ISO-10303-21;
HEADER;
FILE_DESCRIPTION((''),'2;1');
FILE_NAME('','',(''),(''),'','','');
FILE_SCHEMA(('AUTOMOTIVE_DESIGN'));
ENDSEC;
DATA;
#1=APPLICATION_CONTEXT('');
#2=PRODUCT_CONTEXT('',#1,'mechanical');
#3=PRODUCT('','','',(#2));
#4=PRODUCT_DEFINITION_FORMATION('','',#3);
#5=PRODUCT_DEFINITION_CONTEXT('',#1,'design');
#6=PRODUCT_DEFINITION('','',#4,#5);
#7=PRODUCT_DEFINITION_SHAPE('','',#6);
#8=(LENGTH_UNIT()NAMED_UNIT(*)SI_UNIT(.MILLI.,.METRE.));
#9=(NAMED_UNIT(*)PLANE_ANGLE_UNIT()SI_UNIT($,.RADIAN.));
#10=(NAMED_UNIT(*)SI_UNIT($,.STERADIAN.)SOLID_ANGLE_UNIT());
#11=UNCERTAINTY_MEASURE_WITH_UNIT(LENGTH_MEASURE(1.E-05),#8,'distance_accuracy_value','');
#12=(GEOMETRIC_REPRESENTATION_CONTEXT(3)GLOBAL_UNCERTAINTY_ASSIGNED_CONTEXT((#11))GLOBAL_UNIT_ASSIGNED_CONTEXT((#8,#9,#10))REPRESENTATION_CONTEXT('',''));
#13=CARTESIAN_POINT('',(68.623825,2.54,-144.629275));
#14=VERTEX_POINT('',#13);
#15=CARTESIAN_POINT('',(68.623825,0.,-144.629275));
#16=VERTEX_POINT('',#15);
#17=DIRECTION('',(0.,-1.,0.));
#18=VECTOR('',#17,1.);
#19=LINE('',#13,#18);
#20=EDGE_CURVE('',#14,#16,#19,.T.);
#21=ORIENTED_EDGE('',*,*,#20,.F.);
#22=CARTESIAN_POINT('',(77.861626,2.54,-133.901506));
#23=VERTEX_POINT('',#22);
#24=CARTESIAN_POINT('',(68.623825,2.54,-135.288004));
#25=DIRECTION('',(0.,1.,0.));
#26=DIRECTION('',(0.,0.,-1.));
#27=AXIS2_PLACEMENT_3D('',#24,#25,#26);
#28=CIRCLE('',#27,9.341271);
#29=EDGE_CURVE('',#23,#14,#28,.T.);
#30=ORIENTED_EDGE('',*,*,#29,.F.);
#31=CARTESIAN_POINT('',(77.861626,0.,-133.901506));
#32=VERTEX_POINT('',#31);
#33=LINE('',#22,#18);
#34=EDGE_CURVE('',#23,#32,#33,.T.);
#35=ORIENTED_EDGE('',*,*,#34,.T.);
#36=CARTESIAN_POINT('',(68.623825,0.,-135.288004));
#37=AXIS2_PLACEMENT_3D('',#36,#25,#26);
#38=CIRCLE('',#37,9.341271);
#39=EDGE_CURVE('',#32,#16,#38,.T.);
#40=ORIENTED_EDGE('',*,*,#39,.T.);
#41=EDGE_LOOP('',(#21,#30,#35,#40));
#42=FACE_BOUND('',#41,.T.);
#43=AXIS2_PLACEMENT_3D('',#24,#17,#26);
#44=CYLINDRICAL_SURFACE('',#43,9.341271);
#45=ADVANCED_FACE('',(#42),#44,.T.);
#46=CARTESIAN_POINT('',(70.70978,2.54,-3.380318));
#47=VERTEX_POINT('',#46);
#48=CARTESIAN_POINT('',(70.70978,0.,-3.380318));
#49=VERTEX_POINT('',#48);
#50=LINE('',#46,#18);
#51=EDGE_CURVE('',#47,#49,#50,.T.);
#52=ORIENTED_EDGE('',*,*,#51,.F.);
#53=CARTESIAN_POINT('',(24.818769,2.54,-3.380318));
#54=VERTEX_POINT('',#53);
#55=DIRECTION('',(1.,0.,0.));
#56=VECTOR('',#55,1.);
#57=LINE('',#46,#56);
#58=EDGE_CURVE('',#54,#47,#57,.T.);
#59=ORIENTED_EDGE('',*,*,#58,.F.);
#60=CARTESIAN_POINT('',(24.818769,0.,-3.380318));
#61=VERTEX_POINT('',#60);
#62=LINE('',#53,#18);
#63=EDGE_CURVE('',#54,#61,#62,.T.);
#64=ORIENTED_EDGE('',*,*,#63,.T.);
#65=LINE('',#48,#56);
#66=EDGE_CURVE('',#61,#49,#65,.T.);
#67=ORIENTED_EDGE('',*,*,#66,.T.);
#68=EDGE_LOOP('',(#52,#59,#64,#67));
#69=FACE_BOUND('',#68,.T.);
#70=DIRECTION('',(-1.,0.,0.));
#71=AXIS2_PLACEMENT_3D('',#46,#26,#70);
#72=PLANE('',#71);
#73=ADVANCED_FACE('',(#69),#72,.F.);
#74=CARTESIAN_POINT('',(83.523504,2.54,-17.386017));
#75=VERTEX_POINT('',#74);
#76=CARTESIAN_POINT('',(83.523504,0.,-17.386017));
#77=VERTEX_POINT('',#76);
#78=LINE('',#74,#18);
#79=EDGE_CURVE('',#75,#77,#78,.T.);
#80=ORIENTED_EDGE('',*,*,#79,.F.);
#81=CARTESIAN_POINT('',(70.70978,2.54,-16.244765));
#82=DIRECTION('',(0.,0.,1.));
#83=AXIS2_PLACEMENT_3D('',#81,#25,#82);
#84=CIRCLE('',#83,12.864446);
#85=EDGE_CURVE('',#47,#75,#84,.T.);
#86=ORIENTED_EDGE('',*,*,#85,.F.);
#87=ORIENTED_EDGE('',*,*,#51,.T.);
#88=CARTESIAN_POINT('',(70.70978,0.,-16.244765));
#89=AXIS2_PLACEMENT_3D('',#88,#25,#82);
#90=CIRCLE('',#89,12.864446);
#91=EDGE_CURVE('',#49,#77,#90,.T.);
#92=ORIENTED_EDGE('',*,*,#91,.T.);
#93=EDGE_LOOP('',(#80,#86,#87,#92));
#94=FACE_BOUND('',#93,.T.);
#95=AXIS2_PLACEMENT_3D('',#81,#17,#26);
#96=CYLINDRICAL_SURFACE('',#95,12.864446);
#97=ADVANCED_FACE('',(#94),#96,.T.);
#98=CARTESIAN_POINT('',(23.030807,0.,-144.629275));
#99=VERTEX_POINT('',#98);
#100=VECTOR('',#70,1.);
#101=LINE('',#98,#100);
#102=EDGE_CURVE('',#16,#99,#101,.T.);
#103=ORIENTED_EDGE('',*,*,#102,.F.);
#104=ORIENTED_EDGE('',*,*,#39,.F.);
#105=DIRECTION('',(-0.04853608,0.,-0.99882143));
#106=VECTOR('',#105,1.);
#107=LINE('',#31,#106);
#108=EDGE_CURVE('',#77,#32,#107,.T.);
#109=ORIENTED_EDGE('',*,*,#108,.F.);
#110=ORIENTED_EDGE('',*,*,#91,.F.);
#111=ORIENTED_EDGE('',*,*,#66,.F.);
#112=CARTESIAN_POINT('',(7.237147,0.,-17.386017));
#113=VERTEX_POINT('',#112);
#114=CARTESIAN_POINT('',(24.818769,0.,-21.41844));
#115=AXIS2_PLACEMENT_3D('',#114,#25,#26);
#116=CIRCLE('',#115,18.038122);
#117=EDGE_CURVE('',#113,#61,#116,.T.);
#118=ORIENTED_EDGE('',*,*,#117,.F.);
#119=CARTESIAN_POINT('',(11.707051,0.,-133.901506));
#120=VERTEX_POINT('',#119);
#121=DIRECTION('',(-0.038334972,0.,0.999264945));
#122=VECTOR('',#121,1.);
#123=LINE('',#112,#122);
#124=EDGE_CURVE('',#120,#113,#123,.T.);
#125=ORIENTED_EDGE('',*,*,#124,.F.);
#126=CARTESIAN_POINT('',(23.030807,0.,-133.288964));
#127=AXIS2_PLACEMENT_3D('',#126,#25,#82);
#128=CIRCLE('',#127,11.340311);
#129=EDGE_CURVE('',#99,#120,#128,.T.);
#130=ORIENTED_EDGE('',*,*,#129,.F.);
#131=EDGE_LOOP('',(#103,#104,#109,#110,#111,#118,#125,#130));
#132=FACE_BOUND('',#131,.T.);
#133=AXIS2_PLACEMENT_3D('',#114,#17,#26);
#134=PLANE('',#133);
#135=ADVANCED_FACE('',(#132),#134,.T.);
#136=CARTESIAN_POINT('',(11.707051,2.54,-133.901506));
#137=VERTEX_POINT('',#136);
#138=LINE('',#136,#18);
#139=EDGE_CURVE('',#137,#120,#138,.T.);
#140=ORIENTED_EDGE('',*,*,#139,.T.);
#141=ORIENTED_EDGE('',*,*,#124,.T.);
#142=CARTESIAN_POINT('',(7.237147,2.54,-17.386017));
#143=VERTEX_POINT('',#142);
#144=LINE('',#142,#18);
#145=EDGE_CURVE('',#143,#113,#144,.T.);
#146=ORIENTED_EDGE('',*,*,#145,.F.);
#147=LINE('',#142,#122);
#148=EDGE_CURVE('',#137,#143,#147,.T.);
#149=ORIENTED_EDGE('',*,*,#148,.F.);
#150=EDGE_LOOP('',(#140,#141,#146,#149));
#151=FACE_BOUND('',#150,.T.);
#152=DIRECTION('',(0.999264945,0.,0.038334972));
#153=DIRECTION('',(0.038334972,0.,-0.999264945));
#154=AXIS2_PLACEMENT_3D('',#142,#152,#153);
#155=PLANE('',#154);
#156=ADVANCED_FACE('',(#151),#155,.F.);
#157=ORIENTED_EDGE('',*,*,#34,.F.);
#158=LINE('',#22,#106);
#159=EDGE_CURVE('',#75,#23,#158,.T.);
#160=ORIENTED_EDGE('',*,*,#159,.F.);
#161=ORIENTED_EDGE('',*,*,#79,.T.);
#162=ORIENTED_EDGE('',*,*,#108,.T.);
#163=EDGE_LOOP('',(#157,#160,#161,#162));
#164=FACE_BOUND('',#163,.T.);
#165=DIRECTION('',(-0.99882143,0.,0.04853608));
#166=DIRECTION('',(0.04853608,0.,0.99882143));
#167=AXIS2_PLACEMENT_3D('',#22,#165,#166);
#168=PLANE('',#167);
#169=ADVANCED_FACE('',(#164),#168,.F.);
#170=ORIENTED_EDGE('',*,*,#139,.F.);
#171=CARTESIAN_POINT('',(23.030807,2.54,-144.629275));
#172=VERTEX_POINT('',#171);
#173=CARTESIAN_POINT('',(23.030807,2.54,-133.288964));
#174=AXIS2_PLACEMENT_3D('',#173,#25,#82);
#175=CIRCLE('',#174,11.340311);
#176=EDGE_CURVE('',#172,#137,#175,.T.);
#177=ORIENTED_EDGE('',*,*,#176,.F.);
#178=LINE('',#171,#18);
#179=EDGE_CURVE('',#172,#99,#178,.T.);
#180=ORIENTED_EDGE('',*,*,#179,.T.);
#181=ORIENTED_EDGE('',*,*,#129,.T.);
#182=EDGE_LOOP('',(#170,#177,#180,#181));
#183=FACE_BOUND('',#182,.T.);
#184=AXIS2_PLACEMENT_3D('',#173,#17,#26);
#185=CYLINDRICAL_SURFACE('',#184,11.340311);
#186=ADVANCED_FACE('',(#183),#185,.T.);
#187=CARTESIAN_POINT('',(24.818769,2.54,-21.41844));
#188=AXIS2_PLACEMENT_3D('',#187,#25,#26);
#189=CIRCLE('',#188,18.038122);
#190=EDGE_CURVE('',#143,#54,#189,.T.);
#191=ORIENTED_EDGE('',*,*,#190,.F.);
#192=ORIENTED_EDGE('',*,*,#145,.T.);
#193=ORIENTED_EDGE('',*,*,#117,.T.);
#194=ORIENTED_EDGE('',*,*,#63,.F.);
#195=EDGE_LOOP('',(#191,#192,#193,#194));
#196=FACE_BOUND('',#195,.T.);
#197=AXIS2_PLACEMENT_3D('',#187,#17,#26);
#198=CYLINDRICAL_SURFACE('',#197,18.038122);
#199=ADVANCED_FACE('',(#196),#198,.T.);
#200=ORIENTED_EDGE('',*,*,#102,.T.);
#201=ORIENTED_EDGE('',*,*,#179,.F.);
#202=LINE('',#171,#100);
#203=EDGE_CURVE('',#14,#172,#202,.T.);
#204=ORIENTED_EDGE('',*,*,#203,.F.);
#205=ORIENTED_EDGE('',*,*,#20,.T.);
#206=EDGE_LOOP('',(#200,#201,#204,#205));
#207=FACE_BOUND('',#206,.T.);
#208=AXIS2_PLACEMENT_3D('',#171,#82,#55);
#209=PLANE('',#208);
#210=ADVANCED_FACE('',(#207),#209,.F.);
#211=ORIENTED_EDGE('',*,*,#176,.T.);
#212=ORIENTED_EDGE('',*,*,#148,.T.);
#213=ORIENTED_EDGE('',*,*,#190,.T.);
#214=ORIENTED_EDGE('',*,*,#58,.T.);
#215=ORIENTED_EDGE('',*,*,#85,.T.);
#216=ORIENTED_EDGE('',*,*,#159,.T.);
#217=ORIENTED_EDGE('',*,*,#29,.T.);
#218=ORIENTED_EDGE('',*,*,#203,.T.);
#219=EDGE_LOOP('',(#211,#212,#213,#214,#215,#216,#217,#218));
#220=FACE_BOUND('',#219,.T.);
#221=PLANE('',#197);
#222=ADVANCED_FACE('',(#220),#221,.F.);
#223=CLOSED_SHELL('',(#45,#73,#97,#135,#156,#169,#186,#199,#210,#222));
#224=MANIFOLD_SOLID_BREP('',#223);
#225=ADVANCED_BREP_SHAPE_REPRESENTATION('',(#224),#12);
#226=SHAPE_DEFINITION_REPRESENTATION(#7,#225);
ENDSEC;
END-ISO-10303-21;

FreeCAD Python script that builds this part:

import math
import FreeCAD as App
import Part
import Sketcher

V = App.Vector
Q = App.Units.Quantity

doc = App.newDocument("Part")
params = doc.addObject("Spreadsheet::Sheet", "Params")
for row, (alias, value) in enumerate([
    ("pad1_length", "0.1 in"),
], start=1):
    params.set(f"A{row}", alias)
    params.set(f"B{row}", "=" + value)
    params.setAlias(f"B{row}", alias)

body = doc.addObject("PartDesign::Body", "Body")

# Sketch on XZ plane
sketch1 = body.newObject("Sketcher::SketchObject", "Sketch")
sketch1.AttachmentSupport = (doc.getObject("XZ_Plane"), [""])
sketch1.MapMode = "FlatFace"
sketch1.addGeometry([
    Part.LineSegment(V(11.707051, -133.901506, 0), V(7.237147, -17.386017, 0)),  # 0
    Part.ArcOfCircle(Part.Circle(V(24.818769, -21.41844, 0), V(0, 0, 1), 18.038122), math.radians(90), math.radians(167.082367)),  # 1
    Part.LineSegment(V(24.818769, -3.380318, 0), V(70.70978, -3.380318, 0)),  # 2
    Part.ArcOfCircle(Part.Circle(V(70.70978, -16.244765, 0), V(0, 0, 1), 12.864446), math.radians(-5.089609), math.radians(90)),  # 3
    Part.LineSegment(V(83.523504, -17.386017, 0), V(77.861626, -133.901506, 0)),  # 4
    Part.ArcOfCircle(Part.Circle(V(68.623825, -135.288004, 0), V(0, 0, 1), 9.341271), math.radians(-90), math.radians(8.535787)),  # 5
    Part.LineSegment(V(68.623825, -144.629275, 0), V(23.030807, -144.629275, 0)),  # 6
    Part.ArcOfCircle(Part.Circle(V(23.030807, -133.288964, 0), V(0, 0, 1), 11.340311), math.radians(-176.903685), math.radians(-90)),  # 7
], False)
sketch1.addConstraint([
    Sketcher.Constraint("Coincident", 0, 2, 1, 2),
    Sketcher.Constraint("Coincident", 1, 1, 2, 1),
    Sketcher.Constraint("Coincident", 2, 2, 3, 2),
    Sketcher.Constraint("Coincident", 3, 1, 4, 1),
    Sketcher.Constraint("Coincident", 4, 2, 5, 2),
    Sketcher.Constraint("Coincident", 5, 1, 6, 1),
    Sketcher.Constraint("Coincident", 6, 2, 7, 2),
    Sketcher.Constraint("Coincident", 7, 1, 0, 1),
    Sketcher.Constraint("Horizontal", 2),
    Sketcher.Constraint("Horizontal", 6),
    Sketcher.Constraint("Radius", 5, 9.341271),
    Sketcher.Constraint("Radius", 7, 11.340311),
    Sketcher.Constraint("Radius", 1, 18.038122),
    Sketcher.Constraint("Radius", 3, 12.864446),
    Sketcher.Constraint("DistanceX", 0, 2, 3, 1, Q("3.0033999 in")),
    Sketcher.Constraint("Distance", 0, 116.601198),
    Sketcher.Constraint("DistanceX", 2, 1, 2, 2, 45.891011),
    Sketcher.Constraint("DistanceY", 7, 3, 3, 3, 117.044199),
    Sketcher.Constraint("DistanceY", 0, 2, 1, 1, 14.005698),
    Sketcher.Constraint("DistanceY", 3, 1, 2, 2, 14.005698),
    Sketcher.Constraint("DistanceX", 5, 3, 4, 2, 9.237801),
    Sketcher.Constraint("DistanceX", 5, 1, 4, 2, 9.237801),
    Sketcher.Constraint("DistanceX", 6, 2, 6, 1, 45.593018),
    Sketcher.Constraint("DistanceX", -1, 1, 1, 3, 24.818769),
    Sketcher.Constraint("DistanceY", 1, 3, -1, 1, 21.41844),
    Sketcher.Constraint("DistanceX", -1, 1, 1, 1, 24.818769),
    Sketcher.Constraint("DistanceX", -1, 1, 7, 1, 11.707051),
    Sketcher.Constraint("DistanceX", 7, 3, 4, 2, 54.830819),
])
pad1 = body.newObject("PartDesign::Pad", "Pad")
pad1.Profile = sketch1
pad1.setExpression("Length", "Params.pad1_length")
pad1.Reversed = True

doc.recompute()
